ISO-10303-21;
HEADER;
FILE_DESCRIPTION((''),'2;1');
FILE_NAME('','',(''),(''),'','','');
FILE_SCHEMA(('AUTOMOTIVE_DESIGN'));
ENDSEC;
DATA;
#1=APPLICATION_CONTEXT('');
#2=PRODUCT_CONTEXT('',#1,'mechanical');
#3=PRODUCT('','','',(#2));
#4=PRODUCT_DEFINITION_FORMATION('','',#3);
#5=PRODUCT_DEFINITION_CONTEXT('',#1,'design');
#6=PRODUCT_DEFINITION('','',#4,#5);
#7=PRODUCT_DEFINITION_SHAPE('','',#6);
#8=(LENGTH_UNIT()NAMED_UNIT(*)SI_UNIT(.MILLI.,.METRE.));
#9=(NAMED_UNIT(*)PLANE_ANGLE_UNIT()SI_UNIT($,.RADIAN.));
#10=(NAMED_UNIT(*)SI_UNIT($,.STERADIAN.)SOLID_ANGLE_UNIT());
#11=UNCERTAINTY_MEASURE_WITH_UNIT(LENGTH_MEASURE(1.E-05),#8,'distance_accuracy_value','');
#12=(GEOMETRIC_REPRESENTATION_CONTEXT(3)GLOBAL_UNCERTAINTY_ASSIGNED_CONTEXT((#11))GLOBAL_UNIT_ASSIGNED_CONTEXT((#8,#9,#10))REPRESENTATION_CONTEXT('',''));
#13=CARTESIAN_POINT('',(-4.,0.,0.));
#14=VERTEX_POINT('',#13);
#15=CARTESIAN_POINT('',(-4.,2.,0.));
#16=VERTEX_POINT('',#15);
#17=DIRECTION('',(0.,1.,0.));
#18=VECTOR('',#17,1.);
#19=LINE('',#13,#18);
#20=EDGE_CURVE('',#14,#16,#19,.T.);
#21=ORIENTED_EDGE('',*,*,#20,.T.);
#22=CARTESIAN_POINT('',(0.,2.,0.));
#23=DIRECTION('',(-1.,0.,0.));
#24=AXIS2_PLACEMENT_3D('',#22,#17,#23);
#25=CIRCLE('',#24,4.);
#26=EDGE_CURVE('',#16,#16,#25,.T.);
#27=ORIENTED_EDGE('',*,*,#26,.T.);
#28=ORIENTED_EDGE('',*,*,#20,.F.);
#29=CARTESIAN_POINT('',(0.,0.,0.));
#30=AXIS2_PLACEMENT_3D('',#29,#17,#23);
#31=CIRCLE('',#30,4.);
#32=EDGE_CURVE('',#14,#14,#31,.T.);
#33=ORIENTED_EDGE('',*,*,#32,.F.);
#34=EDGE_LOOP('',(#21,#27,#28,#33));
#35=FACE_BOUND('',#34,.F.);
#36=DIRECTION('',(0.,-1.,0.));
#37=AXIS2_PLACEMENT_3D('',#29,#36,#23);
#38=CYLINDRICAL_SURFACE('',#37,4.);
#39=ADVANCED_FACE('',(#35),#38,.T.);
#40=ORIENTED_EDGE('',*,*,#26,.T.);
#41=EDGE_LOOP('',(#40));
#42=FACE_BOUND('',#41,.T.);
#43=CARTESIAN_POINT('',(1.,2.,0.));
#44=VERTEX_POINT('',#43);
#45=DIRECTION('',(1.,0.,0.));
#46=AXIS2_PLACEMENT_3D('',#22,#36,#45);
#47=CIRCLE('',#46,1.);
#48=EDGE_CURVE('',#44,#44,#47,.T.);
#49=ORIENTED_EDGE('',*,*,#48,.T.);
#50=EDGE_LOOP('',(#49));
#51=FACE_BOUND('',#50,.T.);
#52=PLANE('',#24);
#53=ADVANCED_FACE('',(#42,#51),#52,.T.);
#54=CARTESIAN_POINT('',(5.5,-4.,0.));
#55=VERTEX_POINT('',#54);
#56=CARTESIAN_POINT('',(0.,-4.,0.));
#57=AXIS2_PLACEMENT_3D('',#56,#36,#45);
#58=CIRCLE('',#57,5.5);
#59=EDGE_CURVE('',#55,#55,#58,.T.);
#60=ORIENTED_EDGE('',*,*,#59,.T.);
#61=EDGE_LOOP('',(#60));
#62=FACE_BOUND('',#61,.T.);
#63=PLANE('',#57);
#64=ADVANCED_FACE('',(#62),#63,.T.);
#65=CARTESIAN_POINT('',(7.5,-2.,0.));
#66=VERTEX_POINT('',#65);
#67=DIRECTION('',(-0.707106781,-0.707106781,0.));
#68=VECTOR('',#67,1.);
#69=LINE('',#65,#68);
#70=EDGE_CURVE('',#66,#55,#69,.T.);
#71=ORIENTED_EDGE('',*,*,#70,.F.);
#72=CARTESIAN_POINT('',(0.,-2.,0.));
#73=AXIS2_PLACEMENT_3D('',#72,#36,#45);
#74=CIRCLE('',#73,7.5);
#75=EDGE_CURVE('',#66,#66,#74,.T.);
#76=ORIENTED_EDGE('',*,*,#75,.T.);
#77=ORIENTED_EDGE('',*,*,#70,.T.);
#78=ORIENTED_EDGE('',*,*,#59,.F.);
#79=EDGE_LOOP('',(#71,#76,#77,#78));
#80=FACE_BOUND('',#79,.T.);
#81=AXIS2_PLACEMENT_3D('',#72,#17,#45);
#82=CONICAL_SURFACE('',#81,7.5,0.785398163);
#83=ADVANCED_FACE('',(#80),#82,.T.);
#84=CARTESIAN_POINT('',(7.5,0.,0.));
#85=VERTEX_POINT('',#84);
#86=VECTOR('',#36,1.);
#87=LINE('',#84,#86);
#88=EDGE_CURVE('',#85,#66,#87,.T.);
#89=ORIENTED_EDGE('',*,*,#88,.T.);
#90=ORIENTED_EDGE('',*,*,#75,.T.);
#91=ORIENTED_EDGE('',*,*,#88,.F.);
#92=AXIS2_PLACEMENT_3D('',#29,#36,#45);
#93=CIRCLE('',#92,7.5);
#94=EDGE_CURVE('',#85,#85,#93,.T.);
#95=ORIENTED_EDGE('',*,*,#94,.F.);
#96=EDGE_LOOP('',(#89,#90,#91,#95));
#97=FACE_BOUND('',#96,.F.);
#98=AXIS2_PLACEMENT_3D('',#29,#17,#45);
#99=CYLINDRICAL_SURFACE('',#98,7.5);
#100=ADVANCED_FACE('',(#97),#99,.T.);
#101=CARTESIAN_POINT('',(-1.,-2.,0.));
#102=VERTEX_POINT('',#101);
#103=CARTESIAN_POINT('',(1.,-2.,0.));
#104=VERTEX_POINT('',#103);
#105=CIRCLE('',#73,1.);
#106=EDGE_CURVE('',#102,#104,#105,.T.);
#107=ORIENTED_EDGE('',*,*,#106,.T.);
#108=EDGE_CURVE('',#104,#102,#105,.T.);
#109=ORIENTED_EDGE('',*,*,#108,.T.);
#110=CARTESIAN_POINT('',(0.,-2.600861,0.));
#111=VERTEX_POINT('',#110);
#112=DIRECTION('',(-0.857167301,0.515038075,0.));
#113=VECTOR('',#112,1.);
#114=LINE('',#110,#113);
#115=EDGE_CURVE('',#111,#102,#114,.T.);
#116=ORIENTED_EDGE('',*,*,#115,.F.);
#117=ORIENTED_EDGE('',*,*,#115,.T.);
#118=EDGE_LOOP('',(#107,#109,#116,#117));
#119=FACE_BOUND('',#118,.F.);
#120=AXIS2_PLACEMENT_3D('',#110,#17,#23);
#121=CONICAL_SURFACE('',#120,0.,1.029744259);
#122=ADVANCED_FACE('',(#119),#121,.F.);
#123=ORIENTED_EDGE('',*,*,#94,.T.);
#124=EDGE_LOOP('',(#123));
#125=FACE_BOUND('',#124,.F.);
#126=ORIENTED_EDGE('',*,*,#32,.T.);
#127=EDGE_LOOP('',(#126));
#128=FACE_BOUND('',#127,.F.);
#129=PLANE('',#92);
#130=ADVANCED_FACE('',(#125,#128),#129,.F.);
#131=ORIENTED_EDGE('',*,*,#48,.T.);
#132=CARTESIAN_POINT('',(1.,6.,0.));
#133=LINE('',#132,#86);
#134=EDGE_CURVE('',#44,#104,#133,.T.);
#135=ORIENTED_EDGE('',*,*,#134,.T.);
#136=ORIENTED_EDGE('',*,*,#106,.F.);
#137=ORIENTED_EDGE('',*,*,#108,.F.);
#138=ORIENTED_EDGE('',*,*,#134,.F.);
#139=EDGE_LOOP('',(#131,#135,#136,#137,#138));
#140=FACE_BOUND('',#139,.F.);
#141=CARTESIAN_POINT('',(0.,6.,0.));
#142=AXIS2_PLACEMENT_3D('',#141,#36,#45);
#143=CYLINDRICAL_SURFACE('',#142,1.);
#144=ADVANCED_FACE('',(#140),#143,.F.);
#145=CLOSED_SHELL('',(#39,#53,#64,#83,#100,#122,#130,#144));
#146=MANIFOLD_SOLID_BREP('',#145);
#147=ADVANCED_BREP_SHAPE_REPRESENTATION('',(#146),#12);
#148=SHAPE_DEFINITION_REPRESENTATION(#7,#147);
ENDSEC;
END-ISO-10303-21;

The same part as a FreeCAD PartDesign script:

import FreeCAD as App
import Part
import Sketcher


def edges_at(feature, points):
    """Names of the edges that pass closest to the given points."""
    edges = feature.Shape.Edges
    near = lambda p: min(range(len(edges)), key=lambda i: edges[i].distToShape(Part.Vertex(*p))[0])
    return sorted({f"Edge{near(p) + 1}" for p in points})

doc = App.newDocument("Part")
body = doc.addObject("PartDesign::Body", "Body")

# Sketch on XZ plane
sketch1 = doc.addObject("Sketcher::SketchObject", "Sketch")
body.addObject(sketch1)
sketch1.AttachmentSupport = (doc.XZ_Plane, [""])
sketch1.MapMode = "FlatFace"
sketch1.addGeometry(Part.Circle(App.Vector(0, 0, 0), App.Vector(0, 0, 1), 8), False)
sketch1.addConstraint([
    Sketcher.Constraint("Coincident", 0, 3, -1, 1),
    Sketcher.Constraint("Diameter", 0, 15.0),
])
pad1 = doc.addObject("PartDesign::Pad", "Pad")
body.addObject(pad1)
pad1.Profile = sketch1
pad1.Length = 4

# Sketch on XZ plane
sketch2 = doc.addObject("Sketcher::SketchObject", "Sketch001")
body.addObject(sketch2)
sketch2.AttachmentSupport = (doc.XZ_Plane, [""])
sketch2.MapMode = "FlatFace"
sketch2.addGeometry(Part.Circle(App.Vector(0, 0, 0), App.Vector(0, 0, 1), 4), False)
sketch2.addConstraint([
    Sketcher.Constraint("Coincident", 0, 3, -1, 1),
    Sketcher.Constraint("Diameter", 0, 8.0),
])
pad2 = doc.addObject("PartDesign::Pad", "Pad001")
body.addObject(pad2)
pad2.Profile = sketch2
pad2.Length = 2
pad2.Reversed = True

# Sketch on XZ plane
sketch3 = doc.addObject("Sketcher::SketchObject", "Sketch002")
body.addObject(sketch3)
sketch3.AttachmentSupport = (doc.XZ_Plane, [""])
sketch3.MapMode = "FlatFace"
sketch3.AttachmentOffset = App.Placement(App.Vector(0, 0, -2), App.Rotation())
sketch3.addGeometry(Part.Circle(App.Vector(0, 0, 0), App.Vector(0, 0, 1), 1), False)
sketch3.addConstraint([
    Sketcher.Constraint("Coincident", 0, 3, -1, 1),
    Sketcher.Constraint("Diameter", 0, 2.0),
])
doc.recompute()
hole = doc.addObject("PartDesign::Hole", "Hole")
body.addObject(hole)
hole.Profile = sketch3
hole.ThreadType = "None"
hole.Diameter = 2
hole.DepthType = "Dimension"
hole.Depth = 4
hole.DrillPoint = "Angled"
hole.DrillPointAngle = 118
hole.Reversed = True
doc.recompute()

chamfer = doc.addObject("PartDesign::Chamfer", "Chamfer")
body.addObject(chamfer)
chamfer.Base = (hole, edges_at(hole, [(-7.5, -4, 0)]))
chamfer.Size = 2

doc.recompute()
